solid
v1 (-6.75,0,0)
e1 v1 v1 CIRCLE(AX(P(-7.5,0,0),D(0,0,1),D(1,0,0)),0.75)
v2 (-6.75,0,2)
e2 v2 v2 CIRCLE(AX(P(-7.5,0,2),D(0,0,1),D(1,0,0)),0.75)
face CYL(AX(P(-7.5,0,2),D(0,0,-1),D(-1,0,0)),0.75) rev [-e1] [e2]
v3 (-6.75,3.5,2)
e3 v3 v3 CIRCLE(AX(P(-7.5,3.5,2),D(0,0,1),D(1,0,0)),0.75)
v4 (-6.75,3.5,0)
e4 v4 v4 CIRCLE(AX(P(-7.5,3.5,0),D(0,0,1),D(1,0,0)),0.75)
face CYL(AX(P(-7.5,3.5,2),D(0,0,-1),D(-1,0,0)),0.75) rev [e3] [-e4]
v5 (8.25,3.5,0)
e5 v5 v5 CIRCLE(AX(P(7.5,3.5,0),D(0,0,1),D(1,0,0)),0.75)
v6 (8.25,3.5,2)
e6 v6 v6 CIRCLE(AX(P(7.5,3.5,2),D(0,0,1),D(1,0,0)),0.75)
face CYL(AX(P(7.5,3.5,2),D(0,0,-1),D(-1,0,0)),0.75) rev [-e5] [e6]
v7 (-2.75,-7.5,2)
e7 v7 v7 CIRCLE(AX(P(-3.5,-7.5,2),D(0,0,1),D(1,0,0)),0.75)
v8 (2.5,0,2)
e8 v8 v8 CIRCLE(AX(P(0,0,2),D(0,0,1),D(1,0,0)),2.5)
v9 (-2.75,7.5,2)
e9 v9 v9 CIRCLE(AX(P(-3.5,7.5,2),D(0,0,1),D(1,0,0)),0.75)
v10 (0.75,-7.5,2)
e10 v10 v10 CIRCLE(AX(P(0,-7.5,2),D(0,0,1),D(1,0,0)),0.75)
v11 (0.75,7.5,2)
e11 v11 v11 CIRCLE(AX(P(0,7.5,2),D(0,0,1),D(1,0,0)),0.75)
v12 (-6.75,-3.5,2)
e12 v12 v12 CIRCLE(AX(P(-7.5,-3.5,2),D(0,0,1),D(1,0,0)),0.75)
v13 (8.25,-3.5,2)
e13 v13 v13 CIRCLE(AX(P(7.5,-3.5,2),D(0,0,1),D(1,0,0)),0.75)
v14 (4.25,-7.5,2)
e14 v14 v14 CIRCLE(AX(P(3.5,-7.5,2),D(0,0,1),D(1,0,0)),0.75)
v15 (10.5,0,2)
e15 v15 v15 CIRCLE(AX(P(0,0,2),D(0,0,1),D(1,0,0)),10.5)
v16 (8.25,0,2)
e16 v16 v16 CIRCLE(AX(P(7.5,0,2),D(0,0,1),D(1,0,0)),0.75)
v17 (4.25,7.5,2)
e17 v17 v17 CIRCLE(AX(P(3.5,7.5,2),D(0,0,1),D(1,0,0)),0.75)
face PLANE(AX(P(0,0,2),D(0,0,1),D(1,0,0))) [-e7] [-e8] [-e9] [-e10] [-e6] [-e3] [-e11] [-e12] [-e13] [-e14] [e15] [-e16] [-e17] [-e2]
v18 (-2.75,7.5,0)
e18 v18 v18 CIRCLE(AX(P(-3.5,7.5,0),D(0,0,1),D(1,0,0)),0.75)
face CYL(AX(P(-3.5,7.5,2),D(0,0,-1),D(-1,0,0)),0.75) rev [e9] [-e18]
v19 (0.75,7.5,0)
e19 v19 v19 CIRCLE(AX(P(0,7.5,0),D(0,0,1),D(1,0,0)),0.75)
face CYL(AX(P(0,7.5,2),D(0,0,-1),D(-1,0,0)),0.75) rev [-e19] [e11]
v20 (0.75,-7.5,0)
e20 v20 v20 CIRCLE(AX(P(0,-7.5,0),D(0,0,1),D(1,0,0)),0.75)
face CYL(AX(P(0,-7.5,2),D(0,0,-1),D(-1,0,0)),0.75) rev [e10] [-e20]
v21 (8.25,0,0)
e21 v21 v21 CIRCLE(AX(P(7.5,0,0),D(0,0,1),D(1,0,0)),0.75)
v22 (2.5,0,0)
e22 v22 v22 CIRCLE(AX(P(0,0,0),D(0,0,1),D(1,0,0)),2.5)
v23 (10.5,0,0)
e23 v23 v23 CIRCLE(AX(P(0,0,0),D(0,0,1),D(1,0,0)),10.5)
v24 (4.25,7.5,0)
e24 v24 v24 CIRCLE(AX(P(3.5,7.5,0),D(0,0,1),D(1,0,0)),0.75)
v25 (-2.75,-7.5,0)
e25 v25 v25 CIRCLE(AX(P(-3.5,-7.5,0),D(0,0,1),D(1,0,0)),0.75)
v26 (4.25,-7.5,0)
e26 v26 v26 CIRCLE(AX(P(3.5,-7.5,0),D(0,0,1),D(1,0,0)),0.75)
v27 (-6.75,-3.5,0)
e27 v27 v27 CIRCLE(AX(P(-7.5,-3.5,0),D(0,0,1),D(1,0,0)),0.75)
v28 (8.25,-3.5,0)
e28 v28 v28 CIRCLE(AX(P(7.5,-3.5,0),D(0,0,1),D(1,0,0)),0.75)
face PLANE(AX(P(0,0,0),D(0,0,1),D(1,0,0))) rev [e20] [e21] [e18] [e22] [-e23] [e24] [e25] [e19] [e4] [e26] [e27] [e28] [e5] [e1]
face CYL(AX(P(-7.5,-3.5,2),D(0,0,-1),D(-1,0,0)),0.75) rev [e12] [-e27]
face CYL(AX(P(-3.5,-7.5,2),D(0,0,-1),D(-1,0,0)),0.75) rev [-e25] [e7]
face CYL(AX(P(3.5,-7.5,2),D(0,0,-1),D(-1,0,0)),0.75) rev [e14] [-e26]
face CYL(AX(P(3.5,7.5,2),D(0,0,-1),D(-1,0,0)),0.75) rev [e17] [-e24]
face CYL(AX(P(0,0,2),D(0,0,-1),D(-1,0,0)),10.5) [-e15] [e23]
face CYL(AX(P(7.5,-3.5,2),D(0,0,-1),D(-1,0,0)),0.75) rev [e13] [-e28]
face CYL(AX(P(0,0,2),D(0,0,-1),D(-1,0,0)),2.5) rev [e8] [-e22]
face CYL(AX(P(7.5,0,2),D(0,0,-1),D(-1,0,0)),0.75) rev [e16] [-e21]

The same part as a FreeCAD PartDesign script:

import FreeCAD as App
import Part
import Sketcher

V = App.Vector
Q = App.Units.Quantity

doc = App.newDocument("Part")
body = doc.addObject("PartDesign::Body", "Body")

# Sketch on XY plane
sketch1 = body.newObject("Sketcher::SketchObject", "Sketch")
sketch1.AttachmentSupport = (doc.getObject("XY_Plane"), [""])
sketch1.MapMode = "FlatFace"
sketch1.addGeometry([
    Part.Circle(V(0, 0, 0), V(0, 0, 1), 10.5),  # 0
    Part.Circle(V(-3.5, -7.5, 0), V(0, 0, 1), 0.75),  # 1
    Part.Circle(V(-7.5, -3.5, 0), V(0, 0, 1), 0.75),  # 2
    Part.Circle(V(0, -7.5, 0), V(0, 0, 1), 0.75),  # 3
    Part.Circle(V(3.5, -7.5, 0), V(0, 0, 1), 0.75),  # 4
    Part.Circle(V(7.5, -3.5, 0), V(0, 0, 1), 0.75),  # 5
    Part.Circle(V(-7.5, 0, 0), V(0, 0, 1), 0.75),  # 6
    Part.Circle(V(-7.5, 3.5, 0), V(0, 0, 1), 0.75),  # 7
    Part.Circle(V(-3.5, 7.5, 0), V(0, 0, 1), 0.75),  # 8
    Part.Circle(V(0, 0, 0), V(0, 0, 1), 2.5),  # 9
    Part.Circle(V(7.5, 0, 0), V(0, 0, 1), 0.75),  # 10
    Part.Circle(V(7.5, 3.5, 0), V(0, 0, 1), 0.75),  # 11
    Part.Circle(V(0, 7.5, 0), V(0, 0, 1), 0.75),  # 12
    Part.Circle(V(3.5, 7.5, 0), V(0, 0, 1), 0.75),  # 13
], False)
sketch1.addConstraint([
    Sketcher.Constraint("Coincident", 0, 3, -1, 1),
    Sketcher.Constraint("Coincident", 9, 3, -1, 1),
    Sketcher.Constraint("Equal", 1, 2),
    Sketcher.Constraint("Equal", 2, 3),
    Sketcher.Constraint("Equal", 3, 4),
    Sketcher.Constraint("Equal", 4, 5),
    Sketcher.Constraint("Equal", 5, 6),
    Sketcher.Constraint("Equal", 6, 7),
    Sketcher.Constraint("Equal", 7, 8),
    Sketcher.Constraint("Equal", 8, 10),
    Sketcher.Constraint("Equal", 10, 11),
    Sketcher.Constraint("Equal", 11, 12),
    Sketcher.Constraint("Equal", 12, 13),
    Sketcher.Constraint("Symmetric", 5, 3, 7, 3, -1, 1),
    Sketcher.Constraint("Symmetric", 4, 3, 8, 3, -1, 1),
    Sketcher.Constraint("Symmetric", 6, 3, 10, 3, -1, 1),
    Sketcher.Constraint("Symmetric", 2, 3, 11, 3, -1, 1),
    Sketcher.Constraint("Symmetric", 3, 3, 12, 3, -1, 1),
    Sketcher.Constraint("Symmetric", 1, 3, 13, 3, -1, 1),
    Sketcher.Constraint("Symmetric", 1, 3, 4, 3, -2),
    Sketcher.Constraint("Symmetric", 2, 3, 5, 3, -2),
    Sketcher.Constraint("PointOnObject", 3, 3, -2),
    Sketcher.Constraint("PointOnObject", 6, 3, -1),
    Sketcher.Constraint("Horizontal", 1, 3, 3, 3),
    Sketcher.Constraint("Vertical", 2, 3, 6, 3),
    Sketcher.Constraint("Diameter", 0, Q("21 mm")),
    Sketcher.Constraint("Diameter", 9, Q("5 mm")),
    Sketcher.Constraint("Diameter", 1, Q("1.5 mm")),
    Sketcher.Constraint("DistanceX", 2, 3, 1, 3, Q("4 mm")),
    Sketcher.Constraint("DistanceY", 1, 3, 2, 3, Q("4 mm")),
    Sketcher.Constraint("DistanceX", 1, 3, 4, 3, Q("7 mm")),
    Sketcher.Constraint("DistanceY", 2, 3, 7, 3, Q("7 mm")),
])
pad1 = body.newObject("PartDesign::Pad", "Pad")
pad1.Profile = sketch1
pad1.Length = 2

doc.recompute()
